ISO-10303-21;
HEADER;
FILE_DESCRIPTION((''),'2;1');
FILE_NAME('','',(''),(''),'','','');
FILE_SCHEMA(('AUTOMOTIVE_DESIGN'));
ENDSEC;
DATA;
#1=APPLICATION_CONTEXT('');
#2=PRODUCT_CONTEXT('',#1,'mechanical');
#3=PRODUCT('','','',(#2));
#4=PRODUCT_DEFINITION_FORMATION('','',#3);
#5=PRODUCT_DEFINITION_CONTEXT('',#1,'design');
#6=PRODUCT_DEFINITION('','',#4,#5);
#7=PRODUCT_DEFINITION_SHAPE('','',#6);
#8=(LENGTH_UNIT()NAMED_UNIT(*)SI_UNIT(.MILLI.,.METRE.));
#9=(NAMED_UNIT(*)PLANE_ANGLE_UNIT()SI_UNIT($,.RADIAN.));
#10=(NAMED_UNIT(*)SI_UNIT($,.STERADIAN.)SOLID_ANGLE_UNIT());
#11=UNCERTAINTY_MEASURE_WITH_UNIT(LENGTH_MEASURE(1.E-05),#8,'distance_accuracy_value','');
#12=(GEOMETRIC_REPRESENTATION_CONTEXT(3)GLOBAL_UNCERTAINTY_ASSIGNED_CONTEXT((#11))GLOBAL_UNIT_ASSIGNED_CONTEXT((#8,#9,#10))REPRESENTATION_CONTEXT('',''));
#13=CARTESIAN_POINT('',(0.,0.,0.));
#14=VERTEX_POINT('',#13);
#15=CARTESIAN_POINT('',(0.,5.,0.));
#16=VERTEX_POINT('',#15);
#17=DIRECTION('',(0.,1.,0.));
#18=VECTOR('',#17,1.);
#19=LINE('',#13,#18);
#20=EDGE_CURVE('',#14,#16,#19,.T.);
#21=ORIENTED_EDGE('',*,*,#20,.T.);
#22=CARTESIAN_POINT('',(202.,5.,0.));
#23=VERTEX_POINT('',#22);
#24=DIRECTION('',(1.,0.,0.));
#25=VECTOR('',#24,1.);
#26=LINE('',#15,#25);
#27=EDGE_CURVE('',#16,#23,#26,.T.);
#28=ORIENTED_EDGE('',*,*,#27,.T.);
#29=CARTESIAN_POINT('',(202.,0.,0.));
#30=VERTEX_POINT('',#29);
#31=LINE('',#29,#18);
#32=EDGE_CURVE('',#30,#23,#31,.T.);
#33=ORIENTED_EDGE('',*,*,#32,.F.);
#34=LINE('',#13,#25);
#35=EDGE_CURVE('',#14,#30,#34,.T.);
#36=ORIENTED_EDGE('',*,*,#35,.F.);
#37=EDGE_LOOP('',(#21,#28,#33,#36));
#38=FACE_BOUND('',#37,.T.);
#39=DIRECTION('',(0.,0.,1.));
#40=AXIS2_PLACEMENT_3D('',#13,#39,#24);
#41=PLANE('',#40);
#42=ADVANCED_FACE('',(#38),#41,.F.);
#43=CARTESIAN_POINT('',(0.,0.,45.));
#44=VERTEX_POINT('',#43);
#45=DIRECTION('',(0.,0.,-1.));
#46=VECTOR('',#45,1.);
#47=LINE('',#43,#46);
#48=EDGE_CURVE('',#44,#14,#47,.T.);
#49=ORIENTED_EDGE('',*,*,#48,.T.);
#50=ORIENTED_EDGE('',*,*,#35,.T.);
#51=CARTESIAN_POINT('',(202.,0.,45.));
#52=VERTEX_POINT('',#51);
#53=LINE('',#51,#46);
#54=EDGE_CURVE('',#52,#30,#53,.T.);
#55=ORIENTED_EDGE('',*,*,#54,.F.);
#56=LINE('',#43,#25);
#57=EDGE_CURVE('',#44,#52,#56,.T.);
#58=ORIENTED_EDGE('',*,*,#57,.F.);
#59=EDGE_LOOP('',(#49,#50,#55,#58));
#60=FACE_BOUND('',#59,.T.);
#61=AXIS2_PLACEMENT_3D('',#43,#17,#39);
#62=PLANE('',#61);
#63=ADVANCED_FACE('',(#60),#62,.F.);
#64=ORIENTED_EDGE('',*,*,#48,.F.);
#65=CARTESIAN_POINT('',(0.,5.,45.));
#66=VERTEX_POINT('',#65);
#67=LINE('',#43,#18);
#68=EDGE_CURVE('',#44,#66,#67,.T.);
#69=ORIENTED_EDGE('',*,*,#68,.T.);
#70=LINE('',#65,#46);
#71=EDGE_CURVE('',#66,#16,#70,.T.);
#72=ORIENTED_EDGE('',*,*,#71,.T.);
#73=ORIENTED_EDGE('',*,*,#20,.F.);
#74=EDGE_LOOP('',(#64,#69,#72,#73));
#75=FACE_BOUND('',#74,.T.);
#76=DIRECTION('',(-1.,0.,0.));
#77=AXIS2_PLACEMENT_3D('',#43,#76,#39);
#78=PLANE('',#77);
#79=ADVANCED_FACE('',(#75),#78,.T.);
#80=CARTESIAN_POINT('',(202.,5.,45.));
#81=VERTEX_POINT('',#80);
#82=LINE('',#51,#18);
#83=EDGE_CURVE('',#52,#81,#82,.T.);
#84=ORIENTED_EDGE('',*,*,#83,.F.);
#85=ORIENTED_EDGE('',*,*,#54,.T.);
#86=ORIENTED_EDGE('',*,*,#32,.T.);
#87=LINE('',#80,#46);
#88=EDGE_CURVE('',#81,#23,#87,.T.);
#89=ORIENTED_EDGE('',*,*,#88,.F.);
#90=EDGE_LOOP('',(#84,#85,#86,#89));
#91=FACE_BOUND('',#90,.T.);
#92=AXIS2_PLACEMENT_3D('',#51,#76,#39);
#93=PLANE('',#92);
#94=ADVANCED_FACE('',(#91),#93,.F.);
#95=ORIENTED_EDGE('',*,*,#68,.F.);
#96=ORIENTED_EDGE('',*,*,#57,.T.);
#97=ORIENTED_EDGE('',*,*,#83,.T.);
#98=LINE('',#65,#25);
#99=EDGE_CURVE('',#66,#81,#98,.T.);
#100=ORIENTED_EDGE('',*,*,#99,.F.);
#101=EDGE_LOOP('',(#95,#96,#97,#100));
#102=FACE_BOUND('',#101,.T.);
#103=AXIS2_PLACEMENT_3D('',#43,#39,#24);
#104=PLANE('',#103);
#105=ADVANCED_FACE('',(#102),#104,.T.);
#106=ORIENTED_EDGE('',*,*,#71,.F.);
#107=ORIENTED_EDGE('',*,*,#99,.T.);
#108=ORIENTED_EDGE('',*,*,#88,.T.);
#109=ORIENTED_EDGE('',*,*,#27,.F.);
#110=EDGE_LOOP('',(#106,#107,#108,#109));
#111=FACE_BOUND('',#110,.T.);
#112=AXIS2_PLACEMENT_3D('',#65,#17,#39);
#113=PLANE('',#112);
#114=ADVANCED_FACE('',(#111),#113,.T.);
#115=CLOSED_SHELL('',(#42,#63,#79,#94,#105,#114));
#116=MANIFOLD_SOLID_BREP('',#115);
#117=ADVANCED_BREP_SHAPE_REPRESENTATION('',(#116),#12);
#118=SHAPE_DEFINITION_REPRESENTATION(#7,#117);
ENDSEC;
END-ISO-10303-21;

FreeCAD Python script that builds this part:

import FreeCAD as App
import Part
import Sketcher
from FreeCAD import Vector


def add_polygon(sketch, points):
    """Adds a closed chain of lines whose ends are joined by coincident constraints."""
    first, n = sketch.GeometryCount, len(points)
    for a, b in zip(points, points[1:] + points[:1]):
        sketch.addGeometry(Part.LineSegment(App.Vector(*a, 0), App.Vector(*b, 0)), False)
    for i in range(n):
        sketch.addConstraint(Sketcher.Constraint("Coincident", first + i, 2, first + (i + 1) % n, 1))

doc = App.newDocument("Part")
body = doc.addObject("PartDesign::Body", "Body")

# Sketch on XY plane
sketch1 = body.newObject("Sketcher::SketchObject", "Sketch")
sketch1.AttachmentSupport = (doc.getObject("XY_Plane"), [""])
sketch1.MapMode = "FlatFace"
add_polygon(sketch1, [(0, 5), (0, 0), (202, 0), (202, 5)])  # lines 0-3
sketch1.addConstraint([
    Sketcher.Constraint("Vertical", 0),
    Sketcher.Constraint("Horizontal", 1),
    Sketcher.Constraint("Vertical", 2),
    Sketcher.Constraint("Horizontal", 3),
    Sketcher.Constraint("Coincident", 0, 2, -1, 1),
    Sketcher.Constraint("DistanceX", 1, 1, 1, 2, 202.0),
    Sketcher.Constraint("DistanceY", 0, 2, 0, 1, 5.0),
])
pad1 = body.newObject("PartDesign::Pad", "Pad")
pad1.Profile = sketch1
pad1.Length = 45

doc.recompute()
